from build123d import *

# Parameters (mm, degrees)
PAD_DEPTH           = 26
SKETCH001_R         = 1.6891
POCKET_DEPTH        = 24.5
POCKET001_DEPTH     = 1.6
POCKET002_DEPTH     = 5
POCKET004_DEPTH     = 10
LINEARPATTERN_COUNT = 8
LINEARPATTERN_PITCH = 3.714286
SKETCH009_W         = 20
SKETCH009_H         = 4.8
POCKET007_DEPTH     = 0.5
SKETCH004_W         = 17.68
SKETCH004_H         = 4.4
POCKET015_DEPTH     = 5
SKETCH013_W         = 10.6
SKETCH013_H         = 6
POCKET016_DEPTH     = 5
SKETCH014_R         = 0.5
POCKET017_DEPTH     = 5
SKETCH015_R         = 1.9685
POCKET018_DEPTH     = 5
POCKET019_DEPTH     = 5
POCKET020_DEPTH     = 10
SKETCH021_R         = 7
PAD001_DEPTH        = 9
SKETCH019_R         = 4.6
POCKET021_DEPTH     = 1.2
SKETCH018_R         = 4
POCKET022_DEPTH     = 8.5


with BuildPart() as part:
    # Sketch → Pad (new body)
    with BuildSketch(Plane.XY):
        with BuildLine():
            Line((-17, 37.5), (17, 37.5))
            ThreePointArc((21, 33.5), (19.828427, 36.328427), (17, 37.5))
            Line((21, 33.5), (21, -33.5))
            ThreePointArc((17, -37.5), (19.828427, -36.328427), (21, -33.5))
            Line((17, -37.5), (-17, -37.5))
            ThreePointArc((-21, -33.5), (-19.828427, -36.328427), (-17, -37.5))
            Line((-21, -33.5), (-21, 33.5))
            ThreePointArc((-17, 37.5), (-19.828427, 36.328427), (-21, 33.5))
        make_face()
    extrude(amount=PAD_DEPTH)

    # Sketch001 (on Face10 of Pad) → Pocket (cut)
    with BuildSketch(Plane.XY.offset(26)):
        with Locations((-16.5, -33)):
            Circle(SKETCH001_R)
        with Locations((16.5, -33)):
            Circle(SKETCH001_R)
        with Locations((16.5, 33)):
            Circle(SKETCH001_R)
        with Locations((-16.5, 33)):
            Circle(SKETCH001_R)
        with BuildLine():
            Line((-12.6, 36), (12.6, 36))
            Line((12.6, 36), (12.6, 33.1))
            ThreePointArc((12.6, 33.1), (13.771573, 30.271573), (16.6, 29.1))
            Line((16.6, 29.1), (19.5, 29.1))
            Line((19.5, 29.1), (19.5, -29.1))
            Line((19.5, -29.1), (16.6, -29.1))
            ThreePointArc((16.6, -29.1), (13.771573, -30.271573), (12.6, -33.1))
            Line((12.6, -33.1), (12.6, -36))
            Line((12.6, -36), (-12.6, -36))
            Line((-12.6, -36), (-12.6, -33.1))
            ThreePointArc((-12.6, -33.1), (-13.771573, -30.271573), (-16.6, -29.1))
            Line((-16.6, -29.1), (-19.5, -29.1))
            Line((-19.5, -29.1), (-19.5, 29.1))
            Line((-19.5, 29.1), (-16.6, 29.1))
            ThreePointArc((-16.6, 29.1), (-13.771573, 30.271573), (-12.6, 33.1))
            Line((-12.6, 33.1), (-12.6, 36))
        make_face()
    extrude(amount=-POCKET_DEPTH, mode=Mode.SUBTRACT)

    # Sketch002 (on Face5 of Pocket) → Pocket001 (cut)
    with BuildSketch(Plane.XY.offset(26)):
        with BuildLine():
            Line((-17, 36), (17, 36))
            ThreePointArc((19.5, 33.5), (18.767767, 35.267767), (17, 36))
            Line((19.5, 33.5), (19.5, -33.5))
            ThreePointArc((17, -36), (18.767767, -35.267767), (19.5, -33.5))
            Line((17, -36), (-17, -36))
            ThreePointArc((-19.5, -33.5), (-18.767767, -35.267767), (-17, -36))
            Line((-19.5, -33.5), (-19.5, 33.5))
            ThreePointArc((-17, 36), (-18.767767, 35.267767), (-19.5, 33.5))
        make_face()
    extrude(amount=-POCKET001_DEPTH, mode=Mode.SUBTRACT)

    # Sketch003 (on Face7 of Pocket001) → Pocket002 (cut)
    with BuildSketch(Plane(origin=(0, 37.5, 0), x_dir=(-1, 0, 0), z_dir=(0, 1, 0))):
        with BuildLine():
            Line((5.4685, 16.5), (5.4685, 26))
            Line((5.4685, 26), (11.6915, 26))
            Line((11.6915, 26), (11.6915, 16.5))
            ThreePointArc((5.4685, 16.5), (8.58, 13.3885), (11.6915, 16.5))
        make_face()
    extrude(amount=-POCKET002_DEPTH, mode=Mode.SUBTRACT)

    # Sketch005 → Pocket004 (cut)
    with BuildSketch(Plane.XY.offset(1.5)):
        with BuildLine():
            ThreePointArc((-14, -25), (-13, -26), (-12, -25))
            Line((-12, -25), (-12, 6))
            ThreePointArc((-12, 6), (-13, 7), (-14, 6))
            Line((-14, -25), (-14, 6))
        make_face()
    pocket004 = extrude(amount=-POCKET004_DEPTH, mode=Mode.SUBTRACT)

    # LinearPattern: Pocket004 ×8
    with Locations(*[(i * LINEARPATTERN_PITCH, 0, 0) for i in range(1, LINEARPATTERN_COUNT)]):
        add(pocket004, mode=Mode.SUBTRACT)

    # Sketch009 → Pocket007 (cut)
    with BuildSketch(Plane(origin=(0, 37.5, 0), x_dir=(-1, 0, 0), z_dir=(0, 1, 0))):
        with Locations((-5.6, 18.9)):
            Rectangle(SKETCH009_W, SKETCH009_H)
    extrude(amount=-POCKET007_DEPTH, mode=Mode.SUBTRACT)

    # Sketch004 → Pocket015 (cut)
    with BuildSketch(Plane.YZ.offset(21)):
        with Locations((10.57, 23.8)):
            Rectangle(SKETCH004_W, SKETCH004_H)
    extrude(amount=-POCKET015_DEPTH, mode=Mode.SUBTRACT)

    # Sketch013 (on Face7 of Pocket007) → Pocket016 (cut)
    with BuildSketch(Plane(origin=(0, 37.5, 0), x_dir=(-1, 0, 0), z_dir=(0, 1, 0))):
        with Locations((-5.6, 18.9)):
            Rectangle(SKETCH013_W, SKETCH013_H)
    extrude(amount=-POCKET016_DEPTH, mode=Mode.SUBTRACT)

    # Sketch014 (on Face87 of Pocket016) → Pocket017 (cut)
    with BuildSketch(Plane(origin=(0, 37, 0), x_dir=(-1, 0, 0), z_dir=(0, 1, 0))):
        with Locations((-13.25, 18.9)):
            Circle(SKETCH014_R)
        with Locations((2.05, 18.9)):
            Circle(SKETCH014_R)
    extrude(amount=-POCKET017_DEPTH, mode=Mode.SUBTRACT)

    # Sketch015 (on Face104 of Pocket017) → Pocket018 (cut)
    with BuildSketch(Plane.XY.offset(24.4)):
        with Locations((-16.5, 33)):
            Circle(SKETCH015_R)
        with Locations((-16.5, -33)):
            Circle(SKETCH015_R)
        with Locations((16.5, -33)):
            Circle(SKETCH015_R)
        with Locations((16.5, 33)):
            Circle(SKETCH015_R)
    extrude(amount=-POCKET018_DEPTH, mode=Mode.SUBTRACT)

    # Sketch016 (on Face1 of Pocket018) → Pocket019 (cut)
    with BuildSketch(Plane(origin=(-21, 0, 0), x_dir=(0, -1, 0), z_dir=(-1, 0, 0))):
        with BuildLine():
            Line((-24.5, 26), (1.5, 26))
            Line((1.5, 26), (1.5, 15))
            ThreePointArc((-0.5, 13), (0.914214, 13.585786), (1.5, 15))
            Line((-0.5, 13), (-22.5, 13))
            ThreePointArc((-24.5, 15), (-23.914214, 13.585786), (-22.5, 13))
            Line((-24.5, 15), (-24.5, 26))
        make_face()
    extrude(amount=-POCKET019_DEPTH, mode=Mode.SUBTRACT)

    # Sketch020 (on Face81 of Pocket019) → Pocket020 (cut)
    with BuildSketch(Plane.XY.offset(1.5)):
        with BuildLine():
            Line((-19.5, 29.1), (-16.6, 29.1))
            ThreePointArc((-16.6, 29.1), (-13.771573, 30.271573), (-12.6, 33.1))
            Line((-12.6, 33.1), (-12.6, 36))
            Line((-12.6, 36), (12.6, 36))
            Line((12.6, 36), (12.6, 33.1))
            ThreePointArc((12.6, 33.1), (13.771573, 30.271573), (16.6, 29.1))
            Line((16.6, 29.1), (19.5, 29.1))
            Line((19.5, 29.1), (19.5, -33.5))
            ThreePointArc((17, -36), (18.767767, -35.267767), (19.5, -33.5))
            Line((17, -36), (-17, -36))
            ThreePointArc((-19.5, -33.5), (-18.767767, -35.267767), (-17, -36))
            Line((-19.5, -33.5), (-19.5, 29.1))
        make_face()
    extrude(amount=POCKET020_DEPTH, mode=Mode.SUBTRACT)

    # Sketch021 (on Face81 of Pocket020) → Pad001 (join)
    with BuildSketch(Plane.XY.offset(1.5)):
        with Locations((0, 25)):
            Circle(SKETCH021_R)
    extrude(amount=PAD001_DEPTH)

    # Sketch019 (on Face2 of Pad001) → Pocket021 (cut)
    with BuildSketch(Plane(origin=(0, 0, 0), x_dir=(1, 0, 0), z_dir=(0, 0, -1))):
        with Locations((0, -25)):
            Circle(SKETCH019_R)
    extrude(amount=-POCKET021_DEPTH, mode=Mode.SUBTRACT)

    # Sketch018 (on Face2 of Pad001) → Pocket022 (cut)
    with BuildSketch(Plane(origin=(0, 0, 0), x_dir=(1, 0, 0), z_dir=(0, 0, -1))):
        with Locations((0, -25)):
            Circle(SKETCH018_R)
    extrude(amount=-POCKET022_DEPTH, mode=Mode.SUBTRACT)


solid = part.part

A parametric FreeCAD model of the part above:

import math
import FreeCAD as App
import Part
import Sketcher
from FreeCAD import Vector

doc = App.newDocument("Part")
body = doc.addObject("PartDesign::Body", "Body")

# Sketch on XY plane
sketch1 = body.newObject("Sketcher::SketchObject", "Sketch")
sketch1.AttachmentSupport = (doc.getObject("XY_Plane"), [""])
sketch1.MapMode = "FlatFace"
sketch1.addGeometry([
    Part.LineSegment(Vector(17, 37.5, 0), Vector(-17, 37.5, 0)),  # 0
    Part.ArcOfCircle(Part.Circle(Vector(-17, 33.5, 0), Vector(0, 0, 1), 4), math.radians(90), math.radians(180)),  # 1
    Part.LineSegment(Vector(-21, 33.5, 0), Vector(-21, -33.5, 0)),  # 2
    Part.ArcOfCircle(Part.Circle(Vector(-17, -33.5, 0), Vector(0, 0, 1), 4), math.radians(-180), math.radians(-90)),  # 3
    Part.LineSegment(Vector(-17, -37.5, 0), Vector(17, -37.5, 0)),  # 4
    Part.ArcOfCircle(Part.Circle(Vector(17, -33.5, 0), Vector(0, 0, 1), 4), math.radians(-90), math.radians(0)),  # 5
    Part.LineSegment(Vector(21, -33.5, 0), Vector(21, 33.5, 0)),  # 6
    Part.ArcOfCircle(Part.Circle(Vector(17, 33.5, 0), Vector(0, 0, 1), 4), math.radians(0), math.radians(90)),  # 7
], False)
sketch1.addConstraint([
    Sketcher.Constraint("Tangent", 0, 2, 1, 1),
    Sketcher.Constraint("Tangent", 1, 2, 2, 1),
    Sketcher.Constraint("Tangent", 2, 2, 3, 1),
    Sketcher.Constraint("Tangent", 3, 2, 4, 1),
    Sketcher.Constraint("Tangent", 4, 2, 5, 1),
    Sketcher.Constraint("Tangent", 5, 2, 6, 1),
    Sketcher.Constraint("Tangent", 6, 2, 7, 1),
    Sketcher.Constraint("Tangent", 7, 2, 0, 1),
    Sketcher.Constraint("Horizontal", 0),
    Sketcher.Constraint("Vertical", 2),
    Sketcher.Constraint("Horizontal", 4),
    Sketcher.Constraint("Vertical", 6),
    Sketcher.Constraint("Equal", 1, 3),
    Sketcher.Constraint("Equal", 3, 5),
    Sketcher.Constraint("Equal", 5, 7),
    Sketcher.Constraint("Symmetric", 1, 3, 5, 3, -1, 1),
    Sketcher.Constraint("Radius", 1, 4.0),
    Sketcher.Constraint("DistanceX", 0, 2, 0, 1, 34.0),
    Sketcher.Constraint("DistanceY", 2, 2, 2, 1, 67.0),
])
pad1 = body.newObject("PartDesign::Pad", "Pad")
pad1.Profile = sketch1
pad1.Length = 26

# Sketch on XY plane
sketch2 = body.newObject("Sketcher::SketchObject", "Sketch001")
sketch2.AttachmentSupport = (doc.getObject("XY_Plane"), [""])
sketch2.MapMode = "FlatFace"
sketch2.AttachmentOffset = App.Placement(Vector(0, 0, 26), App.Rotation())
sketch2.addGeometry([
    Part.Circle(Vector(-16.5, -33, 0), Vector(0, 0, 1), 1.7),  # 0
    Part.Circle(Vector(16.5, -33, 0), Vector(0, 0, 1), 1.7),  # 1
    Part.Circle(Vector(16.5, 33, 0), Vector(0, 0, 1), 1.7),  # 2
    Part.Circle(Vector(-16.5, 33, 0), Vector(0, 0, 1), 1.7),  # 3
    Part.LineSegment(Vector(12.6, 36, 0), Vector(-12.6, 36, 0)),  # 4
    Part.LineSegment(Vector(-12.6, 36, 0), Vector(-12.6, 33.1, 0)),  # 5
    Part.ArcOfCircle(Part.Circle(Vector(-16.6, 33.1, 0), Vector(0, 0, 1), 4), math.radians(-90), math.radians(0)),  # 6
    Part.LineSegment(Vector(-16.6, 29.1, 0), Vector(-19.5, 29.1, 0)),  # 7
    Part.LineSegment(Vector(-19.5, 29.1, 0), Vector(-19.5, -29.1, 0)),  # 8
    Part.LineSegment(Vector(-19.5, -29.1, 0), Vector(-16.6, -29.1, 0)),  # 9
    Part.ArcOfCircle(Part.Circle(Vector(-16.6, -33.1, 0), Vector(0, 0, 1), 4), math.radians(0), math.radians(90)),  # 10
    Part.LineSegment(Vector(-12.6, -33.1, 0), Vector(-12.6, -36, 0)),  # 11
    Part.LineSegment(Vector(-12.6, -36, 0), Vector(12.6, -36, 0)),  # 12
    Part.LineSegment(Vector(12.6, -36, 0), Vector(12.6, -33.1, 0)),  # 13
    Part.ArcOfCircle(Part.Circle(Vector(16.6, -33.1, 0), Vector(0, 0, 1), 4), math.radians(90), math.radians(180)),  # 14
    Part.LineSegment(Vector(16.6, -29.1, 0), Vector(19.5, -29.1, 0)),  # 15
    Part.LineSegment(Vector(19.5, -29.1, 0), Vector(19.5, 29.1, 0)),  # 16
    Part.LineSegment(Vector(19.5, 29.1, 0), Vector(16.6, 29.1, 0)),  # 17
    Part.ArcOfCircle(Part.Circle(Vector(16.6, 33.1, 0), Vector(0, 0, 1), 4), math.radians(-180), math.radians(-90)),  # 18
    Part.LineSegment(Vector(12.6, 33.1, 0), Vector(12.6, 36, 0)),  # 19
], False)
sketch2.addConstraint([
    Sketcher.Constraint("Coincident", 4, 2, 5, 1),
    Sketcher.Constraint("Tangent", 5, 2, 6, 2),
    Sketcher.Constraint("Tangent", 6, 1, 7, 1),
    Sketcher.Constraint("Coincident", 7, 2, 8, 1),
    Sketcher.Constraint("Coincident", 8, 2, 9, 1),
    Sketcher.Constraint("Tangent", 9, 2, 10, 2),
    Sketcher.Constraint("Tangent", 10, 1, 11, 1),
    Sketcher.Constraint("Coincident", 11, 2, 12, 1),
    Sketcher.Constraint("Coincident", 12, 2, 13, 1),
    Sketcher.Constraint("Tangent", 13, 2, 14, 2),
    Sketcher.Constraint("Tangent", 14, 1, 15, 1),
    Sketcher.Constraint("Coincident", 15, 2, 16, 1),
    Sketcher.Constraint("Coincident", 16, 2, 17, 1),
    Sketcher.Constraint("Tangent", 17, 2, 18, 2),
    Sketcher.Constraint("Tangent", 18, 1, 19, 1),
    Sketcher.Constraint("Coincident", 19, 2, 4, 1),
    Sketcher.Constraint("Horizontal", 4),
    Sketcher.Constraint("Vertical", 5),
    Sketcher.Constraint("Horizontal", 7),
    Sketcher.Constraint("Vertical", 8),
    Sketcher.Constraint("Horizontal", 9),
    Sketcher.Constraint("Vertical", 11),
    Sketcher.Constraint("Horizontal", 12),
    Sketcher.Constraint("Vertical", 13),
    Sketcher.Constraint("Horizontal", 15),
    Sketcher.Constraint("Vertical", 16),
    Sketcher.Constraint("Horizontal", 17),
    Sketcher.Constraint("Vertical", 19),
    Sketcher.Constraint("Equal", 0, 1),
    Sketcher.Constraint("Equal", 1, 2),
    Sketcher.Constraint("Equal", 2, 3),
    Sketcher.Constraint("Equal", 6, 10),
    Sketcher.Constraint("Equal", 10, 14),
    Sketcher.Constraint("Equal", 14, 18),
    Sketcher.Constraint("Symmetric", 0, 3, 2, 3, -1, 1),
    Sketcher.Constraint("Symmetric", 1, 3, 3, 3, -1, 1),
    Sketcher.Constraint("Symmetric", 6, 3, 14, 3, -1, 1),
    Sketcher.Constraint("Symmetric", 10, 3, 18, 3, -1, 1),
    Sketcher.Constraint("Symmetric", 0, 3, 1, 3, -2),
    Sketcher.Constraint("Symmetric", 10, 3, 14, 3, -2),
    Sketcher.Constraint("Equal", 9, 15),
    Sketcher.Constraint("Equal", 17, 5),
    Sketcher.Constraint("Equal", 5, 11),
    Sketcher.Constraint("Radius", 6, 4.0),
    Sketcher.Constraint("DistanceX", 4, 2, 4, 1, 25.2),
    Sketcher.Constraint("DistanceX", 7, 2, 7, 1, 2.9),
    Sketcher.Constraint("DistanceY", 8, 2, 8, 1, 58.2),
    Sketcher.Constraint("DistanceY", 0, 3, -1, 1, 33.0),
    Sketcher.Constraint("DistanceX", 0, 3, 1, 3, 33.0),
    Sketcher.Constraint("Diameter", 0, 3.3782),
])
pocket1 = body.newObject("PartDesign::Pocket", "Pocket")
pocket1.Profile = sketch2
pocket1.Length = 24.5

# Sketch on XY plane
sketch3 = body.newObject("Sketcher::SketchObject", "Sketch002")
sketch3.AttachmentSupport = (doc.getObject("XY_Plane"), [""])
sketch3.MapMode = "FlatFace"
sketch3.AttachmentOffset = App.Placement(Vector(0, 0, 26), App.Rotation())
sketch3.addGeometry([
    Part.LineSegment(Vector(17, 36, 0), Vector(-17, 36, 0)),  # 0
    Part.ArcOfCircle(Part.Circle(Vector(-17, 33.5, 0), Vector(0, 0, 1), 2.5), math.radians(90), math.radians(180)),  # 1
    Part.LineSegment(Vector(-19.5, 33.5, 0), Vector(-19.5, -33.5, 0)),  # 2
    Part.ArcOfCircle(Part.Circle(Vector(-17, -33.5, 0), Vector(0, 0, 1), 2.5), math.radians(180), math.radians(270)),  # 3
    Part.LineSegment(Vector(-17, -36, 0), Vector(17, -36, 0)),  # 4
    Part.ArcOfCircle(Part.Circle(Vector(17, -33.5, 0), Vector(0, 0, 1), 2.5), math.radians(-90), math.radians(0)),  # 5
    Part.LineSegment(Vector(19.5, -33.5, 0), Vector(19.5, 33.5, 0)),  # 6
    Part.ArcOfCircle(Part.Circle(Vector(17, 33.5, 0), Vector(0, 0, 1), 2.5), math.radians(0), math.radians(90)),  # 7
], False)
sketch3.addConstraint([
    Sketcher.Constraint("Tangent", 0, 2, 1, 1),
    Sketcher.Constraint("Tangent", 1, 2, 2, 1),
    Sketcher.Constraint("Tangent", 2, 2, 3, 1),
    Sketcher.Constraint("Tangent", 3, 2, 4, 1),
    Sketcher.Constraint("Tangent", 4, 2, 5, 1),
    Sketcher.Constraint("Tangent", 5, 2, 6, 1),
    Sketcher.Constraint("Tangent", 6, 2, 7, 1),
    Sketcher.Constraint("Tangent", 7, 2, 0, 1),
    Sketcher.Constraint("Horizontal", 0),
    Sketcher.Constraint("Vertical", 2),
    Sketcher.Constraint("Horizontal", 4),
    Sketcher.Constraint("Vertical", 6),
    Sketcher.Constraint("Equal", 1, 3),
    Sketcher.Constraint("Equal", 3, 5),
    Sketcher.Constraint("Equal", 5, 7),
    Sketcher.Constraint("Symmetric", 1, 3, 5, 3, -1, 1),
    Sketcher.Constraint("Radius", 1, 2.5),
    Sketcher.Constraint("DistanceX", 0, 2, 0, 1, 34.0),
    Sketcher.Constraint("DistanceY", 2, 2, 2, 1, 67.0),
])
pocket2 = body.newObject("PartDesign::Pocket", "Pocket001")
pocket2.Profile = sketch3
pocket2.Length = 1.6

# Sketch on XZ plane
sketch4 = body.newObject("Sketcher::SketchObject", "Sketch003")
sketch4.AttachmentSupport = (doc.getObject("XZ_Plane"), [""])
sketch4.MapMode = "FlatFace"
sketch4.AttachmentOffset = App.Placement(Vector(0, 0, -37.5), App.Rotation())
sketch4.addGeometry([
    Part.LineSegment(Vector(-5.5, 26, 0), Vector(-5.5, 16.5, 0)),
    Part.ArcOfCircle(Part.Circle(Vector(-8.6, 16.5, 0), Vector(0, 0, 1), 3.1), math.radians(180), math.radians(360)),
    Part.LineSegment(Vector(-11.7, 16.5, 0), Vector(-11.7, 26, 0)),
    Part.LineSegment(Vector(-11.7, 26, 0), Vector(-5.5, 26, 0)),
], False)
sketch4.addConstraint([
    Sketcher.Constraint("Tangent", 0, 2, 1, 2),
    Sketcher.Constraint("Tangent", 1, 1, 2, 1),
    Sketcher.Constraint("Coincident", 2, 2, 3, 1),
    Sketcher.Constraint("Coincident", 3, 2, 0, 1),
    Sketcher.Constraint("Vertical", 0),
    Sketcher.Constraint("Vertical", 2),
    Sketcher.Constraint("Horizontal", 3),
    Sketcher.Constraint("DistanceY", 0, 2, 0, 1, 9.5),
    Sketcher.Constraint("DistanceY", -1, 1, 2, 2, 26.0),
    Sketcher.Constraint("Radius", 1, 3.1115),
    Sketcher.Constraint("DistanceX", 1, 3, -1, 1, 8.58),
])
pocket3 = body.newObject("PartDesign::Pocket", "Pocket002")
pocket3.Profile = sketch4
pocket3.Length = 5
pocket3.Reversed = True

# Sketch on XY plane
sketch5 = body.newObject("Sketcher::SketchObject", "Sketch004")
sketch5.AttachmentSupport = (doc.getObject("XY_Plane"), [""])
sketch5.MapMode = "FlatFace"
sketch5.AttachmentOffset = App.Placement(Vector(0, 0, 1.5), App.Rotation())
sketch5.addGeometry([
    Part.ArcOfCircle(Part.Circle(Vector(-13, -25, 0), Vector(0, 0, 1), 1), math.radians(180), math.radians(360)),
    Part.LineSegment(Vector(-12, -25, 0), Vector(-12, 6, 0)),
    Part.ArcOfCircle(Part.Circle(Vector(-13, 6, 0), Vector(0, 0, 1), 1), math.radians(0), math.radians(180)),
    Part.LineSegment(Vector(-14, 6, 0), Vector(-14, -25, 0)),
], False)
sketch5.addConstraint([
    Sketcher.Constraint("Tangent", 0, 2, 1, 1),
    Sketcher.Constraint("Tangent", 1, 2, 2, 1),
    Sketcher.Constraint("Tangent", 2, 2, 3, 1),
    Sketcher.Constraint("Tangent", 3, 2, 0, 1),
    Sketcher.Constraint("Vertical", 1),
    Sketcher.Constraint("Vertical", 3),
    Sketcher.Constraint("Radius", 0, 1.0),
    Sketcher.Constraint("DistanceY", 1, 1, 1, 2, 31.0),
    Sketcher.Constraint("DistanceX", 0, 3, -1, 1, 13.0),
    Sketcher.Constraint("DistanceY", 0, 3, -1, 1, 25.0),
])
pocket4 = body.newObject("PartDesign::Pocket", "Pocket003")
pocket4.Profile = sketch5
pocket4.Length = 10
doc.recompute()

linearpattern = body.newObject("PartDesign::LinearPattern", "LinearPattern")
linearpattern.Originals = [pocket4]
linearpattern.Direction = (doc.getObject("X_Axis"), [""])
linearpattern.Mode = "offset"
linearpattern.Offset = 3.714286
linearpattern.Occurrences = 8
body.Tip = linearpattern

# Sketch on XZ plane
sketch6 = body.newObject("Sketcher::SketchObject", "Sketch005")
sketch6.AttachmentSupport = (doc.getObject("XZ_Plane"), [""])
sketch6.MapMode = "FlatFace"
sketch6.AttachmentOffset = App.Placement(Vector(0, 0, -37.5), App.Rotation())
sketch6.addGeometry([
    Part.LineSegment(Vector(15.6, 21.3, 0), Vector(15.6, 16.5, 0)),
    Part.LineSegment(Vector(15.6, 16.5, 0), Vector(-4.4, 16.5, 0)),
    Part.LineSegment(Vector(-4.4, 16.5, 0), Vector(-4.4, 21.3, 0)),
    Part.LineSegment(Vector(-4.4, 21.3, 0), Vector(15.6, 21.3, 0)),
], False)
sketch6.addConstraint([
    Sketcher.Constraint("Coincident", 0, 2, 1, 1),
    Sketcher.Constraint("Coincident", 1, 2, 2, 1),
    Sketcher.Constraint("Coincident", 2, 2, 3, 1),
    Sketcher.Constraint("Coincident", 3, 2, 0, 1),
    Sketcher.Constraint("Vertical", 0),
    Sketcher.Constraint("Horizontal", 1),
    Sketcher.Constraint("Vertical", 2),
    Sketcher.Constraint("Horizontal", 3),
    Sketcher.Constraint("DistanceX", 1, 2, 1, 1, 20.0),
    Sketcher.Constraint("DistanceY", 0, 2, 0, 1, 4.8),
    Sketcher.Constraint("DistanceX", -1, 1, 0, 2, 15.6),
    Sketcher.Constraint("DistanceY", -1, 1, 0, 2, 16.5),
])
pocket5 = body.newObject("PartDesign::Pocket", "Pocket004")
pocket5.Profile = sketch6
pocket5.Length = 0.5
pocket5.Reversed = True

# Sketch on YZ plane
sketch7 = body.newObject("Sketcher::SketchObject", "Sketch006")
sketch7.AttachmentSupport = (doc.getObject("YZ_Plane"), [""])
sketch7.MapMode = "FlatFace"
sketch7.AttachmentOffset = App.Placement(Vector(0, 0, 21), App.Rotation())
sketch7.addGeometry([
    Part.LineSegment(Vector(1.7, 26, 0), Vector(1.7, 21.6, 0)),
    Part.LineSegment(Vector(1.7, 21.6, 0), Vector(19.4, 21.6, 0)),
    Part.LineSegment(Vector(19.4, 21.6, 0), Vector(19.4, 26, 0)),
    Part.LineSegment(Vector(19.4, 26, 0), Vector(1.7, 26, 0)),
], False)
sketch7.addConstraint([
    Sketcher.Constraint("Coincident", 0, 2, 1, 1),
    Sketcher.Constraint("Coincident", 1, 2, 2, 1),
    Sketcher.Constraint("Coincident", 2, 2, 3, 1),
    Sketcher.Constraint("Coincident", 3, 2, 0, 1),
    Sketcher.Constraint("Vertical", 0),
    Sketcher.Constraint("Horizontal", 1),
    Sketcher.Constraint("Vertical", 2),
    Sketcher.Constraint("Horizontal", 3),
    Sketcher.Constraint("DistanceY", 0, 2, 0, 1, 4.4),
    Sketcher.Constraint("DistanceY", -1, 1, 2, 2, 26.0),
    Sketcher.Constraint("DistanceX", 1, 1, 1, 2, 17.68),
    Sketcher.Constraint("DistanceX", -1, 1, 0, 2, 1.73),
])
pocket6 = body.newObject("PartDesign::Pocket", "Pocket005")
pocket6.Profile = sketch7
pocket6.Length = 5

# Sketch on XZ plane
sketch8 = body.newObject("Sketcher::SketchObject", "Sketch007")
sketch8.AttachmentSupport = (doc.getObject("XZ_Plane"), [""])
sketch8.MapMode = "FlatFace"
sketch8.AttachmentOffset = App.Placement(Vector(0, 0, -37.5), App.Rotation())
sketch8.addGeometry([
    Part.LineSegment(Vector(11, 22, 0), Vector(11, 16, 0)),
    Part.LineSegment(Vector(11, 16, 0), Vector(0, 16, 0)),
    Part.LineSegment(Vector(0, 16, 0), Vector(0, 22, 0)),
    Part.LineSegment(Vector(0, 22, 0), Vector(11, 22, 0)),
], False)
sketch8.addConstraint([
    Sketcher.Constraint("Coincident", 0, 2, 1, 1),
    Sketcher.Constraint("Coincident", 1, 2, 2, 1),
    Sketcher.Constraint("Coincident", 2, 2, 3, 1),
    Sketcher.Constraint("Coincident", 3, 2, 0, 1),
    Sketcher.Constraint("Vertical", 0),
    Sketcher.Constraint("Horizontal", 1),
    Sketcher.Constraint("Vertical", 2),
    Sketcher.Constraint("Horizontal", 3),
    Sketcher.Constraint("DistanceY", 0, 2, 0, 1, 6.0),
    Sketcher.Constraint("DistanceX", 1, 2, 1, 1, 10.6),
    Sketcher.Constraint("DistanceX", -1, 1, 0, 2, 10.9),
    Sketcher.Constraint("DistanceY", -1, 1, 0, 2, 15.9),
])
pocket7 = body.newObject("PartDesign::Pocket", "Pocket006")
pocket7.Profile = sketch8
pocket7.Length = 5
pocket7.Reversed = True

# Sketch on XZ plane
sketch9 = body.newObject("Sketcher::SketchObject", "Sketch008")
sketch9.AttachmentSupport = (doc.getObject("XZ_Plane"), [""])
sketch9.MapMode = "FlatFace"
sketch9.AttachmentOffset = App.Placement(Vector(0, 0, -37), App.Rotation())
sketch9.addGeometry([
    Part.Circle(Vector(13.2, 18.9, 0), Vector(0, 0, 1), 0.5),
    Part.Circle(Vector(-2, 18.9, 0), Vector(0, 0, 1), 0.5),
], False)
sketch9.addConstraint([
    Sketcher.Constraint("Equal", 0, 1),
    Sketcher.Constraint("Horizontal", 0, 3, 1, 3),
    Sketcher.Constraint("Diameter", 0, 1.0),
    Sketcher.Constraint("DistanceY", -1, 1, 0, 3, 18.9),
    Sketcher.Constraint("DistanceX", 1, 3, 0, 3, 15.3),
    Sketcher.Constraint("DistanceX", -1, 1, 0, 3, 13.25),
])
pocket8 = body.newObject("PartDesign::Pocket", "Pocket007")
pocket8.Profile = sketch9
pocket8.Length = 5
pocket8.Reversed = True

# Sketch on XY plane
sketch10 = body.newObject("Sketcher::SketchObject", "Sketch009")
sketch10.AttachmentSupport = (doc.getObject("XY_Plane"), [""])
sketch10.MapMode = "FlatFace"
sketch10.AttachmentOffset = App.Placement(Vector(0, 0, 24.4), App.Rotation())
sketch10.addGeometry([
    Part.Circle(Vector(-16.5, 33, 0), Vector(0, 0, 1), 2),
    Part.Circle(Vector(-16.5, -33, 0), Vector(0, 0, 1), 2),
    Part.Circle(Vector(16.5, -33, 0), Vector(0, 0, 1), 2),
    Part.Circle(Vector(16.5, 33, 0), Vector(0, 0, 1), 2),
], False)
sketch10.addConstraint([
    Sketcher.Constraint("Equal", 0, 1),
    Sketcher.Constraint("Equal", 1, 2),
    Sketcher.Constraint("Equal", 2, 3),
    Sketcher.Constraint("Symmetric", 0, 3, 2, 3, -1, 1),
    Sketcher.Constraint("Symmetric", 1, 3, 3, 3, -1, 1),
    Sketcher.Constraint("Symmetric", 1, 3, 2, 3, -2),
    Sketcher.Constraint("Diameter", 0, 3.937),
    Sketcher.Constraint("DistanceY", -1, 1, 0, 3, 33.0),
    Sketcher.Constraint("DistanceX", 1, 3, 2, 3, 33.0),
])
pocket9 = body.newObject("PartDesign::Pocket", "Pocket008")
pocket9.Profile = sketch10
pocket9.Length = 5

# Sketch on YZ plane
sketch11 = body.newObject("Sketcher::SketchObject", "Sketch010")
sketch11.AttachmentSupport = (doc.getObject("YZ_Plane"), [""])
sketch11.MapMode = "FlatFace"
sketch11.AttachmentOffset = App.Placement(Vector(0, 0, -21), App.Rotation())
sketch11.addGeometry([
    Part.LineSegment(Vector(-1.5, 26, 0), Vector(24.5, 26, 0)),  # 0
    Part.LineSegment(Vector(24.5, 26, 0), Vector(24.5, 15, 0)),  # 1
    Part.ArcOfCircle(Part.Circle(Vector(22.5, 15, 0), Vector(0, 0, 1), 2), math.radians(-90), math.radians(0)),  # 2
    Part.LineSegment(Vector(22.5, 13, 0), Vector(0.5, 13, 0)),  # 3
    Part.ArcOfCircle(Part.Circle(Vector(0.5, 15, 0), Vector(0, 0, 1), 2), math.radians(180), math.radians(270)),  # 4
    Part.LineSegment(Vector(-1.5, 15, 0), Vector(-1.5, 26, 0)),  # 5
], False)
sketch11.addConstraint([
    Sketcher.Constraint("Coincident", 0, 2, 1, 1),
    Sketcher.Constraint("Tangent", 1, 2, 2, 2),
    Sketcher.Constraint("Tangent", 2, 1, 3, 1),
    Sketcher.Constraint("Tangent", 3, 2, 4, 2),
    Sketcher.Constraint("Tangent", 4, 1, 5, 1),
    Sketcher.Constraint("Coincident", 5, 2, 0, 1),
    Sketcher.Constraint("Horizontal", 0),
    Sketcher.Constraint("Vertical", 1),
    Sketcher.Constraint("Horizontal", 3),
    Sketcher.Constraint("Vertical", 5),
    Sketcher.Constraint("Equal", 2, 4),
    Sketcher.Constraint("Radius", 2, 1.999999),
    Sketcher.Constraint("DistanceX", 0, 1, 0, 2, 26.0),
    Sketcher.Constraint("DistanceY", 1, 2, 1, 1, 11.0),
    Sketcher.Constraint("DistanceY", -1, 1, 2, 3, 14.999999),
    Sketcher.Constraint("DistanceX", -1, 1, 2, 3, 22.500001),
])
pocket10 = body.newObject("PartDesign::Pocket", "Pocket009")
pocket10.Profile = sketch11
pocket10.Length = 5
pocket10.Reversed = True

# Sketch on XY plane
sketch12 = body.newObject("Sketcher::SketchObject", "Sketch011")
sketch12.AttachmentSupport = (doc.getObject("XY_Plane"), [""])
sketch12.MapMode = "FlatFace"
sketch12.AttachmentOffset = App.Placement(Vector(0, 0, 1.5), App.Rotation())
sketch12.addGeometry([
    Part.LineSegment(Vector(-16.6, 29.1, 0), Vector(-19.5, 29.1, 0)),  # 0
    Part.LineSegment(Vector(-19.5, 29.1, 0), Vector(-19.5, -33.5, 0)),  # 1
    Part.ArcOfCircle(Part.Circle(Vector(-17, -33.5, 0), Vector(0, 0, 1), 2.5), math.radians(180), math.radians(270)),  # 2
    Part.LineSegment(Vector(-17, -36, 0), Vector(17, -36, 0)),  # 3
    Part.ArcOfCircle(Part.Circle(Vector(17, -33.5, 0), Vector(0, 0, 1), 2.5), math.radians(-90), math.radians(0)),  # 4
    Part.LineSegment(Vector(19.5, -33.5, 0), Vector(19.5, 29.1, 0)),  # 5
    Part.LineSegment(Vector(19.5, 29.1, 0), Vector(16.6, 29.1, 0)),  # 6
    Part.ArcOfCircle(Part.Circle(Vector(16.6, 33.1, 0), Vector(0, 0, 1), 4), math.radians(-180), math.radians(-90)),  # 7
    Part.LineSegment(Vector(12.6, 33.1, 0), Vector(12.6, 36, 0)),  # 8
    Part.LineSegment(Vector(12.6, 36, 0), Vector(-12.6, 36, 0)),  # 9
    Part.LineSegment(Vector(-12.6, 36, 0), Vector(-12.6, 33.1, 0)),  # 10
    Part.ArcOfCircle(Part.Circle(Vector(-16.6, 33.1, 0), Vector(0, 0, 1), 4), math.radians(-90), math.radians(0)),  # 11
], False)
sketch12.addConstraint([
    Sketcher.Constraint("Coincident", 0, 2, 1, 1),
    Sketcher.Constraint("Tangent", 1, 2, 2, 1),
    Sketcher.Constraint("Tangent", 2, 2, 3, 1),
    Sketcher.Constraint("Tangent", 3, 2, 4, 1),
    Sketcher.Constraint("Tangent", 4, 2, 5, 1),
    Sketcher.Constraint("Coincident", 5, 2, 6, 1),
    Sketcher.Constraint("Tangent", 6, 2, 7, 2),
    Sketcher.Constraint("Tangent", 7, 1, 8, 1),
    Sketcher.Constraint("Coincident", 8, 2, 9, 1),
    Sketcher.Constraint("Coincident", 9, 2, 10, 1),
    Sketcher.Constraint("Tangent", 10, 2, 11, 2),
    Sketcher.Constraint("Tangent", 11, 1, 0, 1),
    Sketcher.Constraint("Horizontal", 0),
    Sketcher.Constraint("Vertical", 1),
    Sketcher.Constraint("Horizontal", 3),
    Sketcher.Constraint("Vertical", 5),
    Sketcher.Constraint("Horizontal", 6),
    Sketcher.Constraint("Vertical", 8),
    Sketcher.Constraint("Horizontal", 9),
    Sketcher.Constraint("Vertical", 10),
    Sketcher.Constraint("Equal", 2, 4),
    Sketcher.Constraint("Equal", 7, 11),
    Sketcher.Constraint("Symmetric", 7, 3, 11, 3, -2),
    Sketcher.Constraint("Equal", 0, 6),
    Sketcher.Constraint("Equal", 6, 8),
    Sketcher.Constraint("Radius", 7, 4.0),
    Sketcher.Constraint("Radius", 2, 2.5),
    Sketcher.Constraint("DistanceX", 3, 1, 3, 2, 34.0),
    Sketcher.Constraint("DistanceX", 0, 2, 0, 1, 2.9),
    Sketcher.Constraint("DistanceY", 1, 2, 1, 1, 62.6),
    Sketcher.Constraint("DistanceY", 2, 2, -1, 1, 36.0),
])
pocket11 = body.newObject("PartDesign::Pocket", "Pocket010")
pocket11.Profile = sketch12
pocket11.Length = 10
pocket11.Reversed = True

# Sketch on XY plane
sketch13 = body.newObject("Sketcher::SketchObject", "Sketch012")
sketch13.AttachmentSupport = (doc.getObject("XY_Plane"), [""])
sketch13.MapMode = "FlatFace"
sketch13.AttachmentOffset = App.Placement(Vector(0, 0, 1.5), App.Rotation())
sketch13.addGeometry(Part.Circle(Vector(0, 25, 0), Vector(0, 0, 1), 7), False)
sketch13.addConstraint([
    Sketcher.Constraint("PointOnObject", 0, 3, -2),
    Sketcher.Constraint("Diameter", 0, 14.0),
    Sketcher.Constraint("DistanceY", -1, 1, 0, 3, 25.0),
])
pad2 = body.newObject("PartDesign::Pad", "Pad001")
pad2.Profile = sketch13
pad2.Length = 9

# Sketch on XY plane
sketch14 = body.newObject("Sketcher::SketchObject", "Sketch013")
sketch14.AttachmentSupport = (doc.getObject("XY_Plane"), [""])
sketch14.MapMode = "FlatFace"
sketch14.addGeometry(Part.Circle(Vector(0, 25, 0), Vector(0, 0, 1), 4.6), False)
sketch14.addConstraint([
    Sketcher.Constraint("PointOnObject", 0, 3, -2),
    Sketcher.Constraint("Diameter", 0, 9.2),
    Sketcher.Constraint("DistanceY", -1, 1, 0, 3, 25.0),
])
pocket12 = body.newObject("PartDesign::Pocket", "Pocket011")
pocket12.Profile = sketch14
pocket12.Length = 1.2
pocket12.Reversed = True

# Sketch on XY plane
sketch15 = body.newObject("Sketcher::SketchObject", "Sketch014")
sketch15.AttachmentSupport = (doc.getObject("XY_Plane"), [""])
sketch15.MapMode = "FlatFace"
sketch15.addGeometry(Part.Circle(Vector(0, 25, 0), Vector(0, 0, 1), 4), False)
sketch15.addConstraint([
    Sketcher.Constraint("PointOnObject", 0, 3, -2),
    Sketcher.Constraint("Diameter", 0, 8.0),
    Sketcher.Constraint("DistanceY", -1, 1, 0, 3, 25.0),
])
pocket13 = body.newObject("PartDesign::Pocket", "Pocket012")
pocket13.Profile = sketch15
pocket13.Length = 8.5
pocket13.Reversed = True

doc.recompute()
